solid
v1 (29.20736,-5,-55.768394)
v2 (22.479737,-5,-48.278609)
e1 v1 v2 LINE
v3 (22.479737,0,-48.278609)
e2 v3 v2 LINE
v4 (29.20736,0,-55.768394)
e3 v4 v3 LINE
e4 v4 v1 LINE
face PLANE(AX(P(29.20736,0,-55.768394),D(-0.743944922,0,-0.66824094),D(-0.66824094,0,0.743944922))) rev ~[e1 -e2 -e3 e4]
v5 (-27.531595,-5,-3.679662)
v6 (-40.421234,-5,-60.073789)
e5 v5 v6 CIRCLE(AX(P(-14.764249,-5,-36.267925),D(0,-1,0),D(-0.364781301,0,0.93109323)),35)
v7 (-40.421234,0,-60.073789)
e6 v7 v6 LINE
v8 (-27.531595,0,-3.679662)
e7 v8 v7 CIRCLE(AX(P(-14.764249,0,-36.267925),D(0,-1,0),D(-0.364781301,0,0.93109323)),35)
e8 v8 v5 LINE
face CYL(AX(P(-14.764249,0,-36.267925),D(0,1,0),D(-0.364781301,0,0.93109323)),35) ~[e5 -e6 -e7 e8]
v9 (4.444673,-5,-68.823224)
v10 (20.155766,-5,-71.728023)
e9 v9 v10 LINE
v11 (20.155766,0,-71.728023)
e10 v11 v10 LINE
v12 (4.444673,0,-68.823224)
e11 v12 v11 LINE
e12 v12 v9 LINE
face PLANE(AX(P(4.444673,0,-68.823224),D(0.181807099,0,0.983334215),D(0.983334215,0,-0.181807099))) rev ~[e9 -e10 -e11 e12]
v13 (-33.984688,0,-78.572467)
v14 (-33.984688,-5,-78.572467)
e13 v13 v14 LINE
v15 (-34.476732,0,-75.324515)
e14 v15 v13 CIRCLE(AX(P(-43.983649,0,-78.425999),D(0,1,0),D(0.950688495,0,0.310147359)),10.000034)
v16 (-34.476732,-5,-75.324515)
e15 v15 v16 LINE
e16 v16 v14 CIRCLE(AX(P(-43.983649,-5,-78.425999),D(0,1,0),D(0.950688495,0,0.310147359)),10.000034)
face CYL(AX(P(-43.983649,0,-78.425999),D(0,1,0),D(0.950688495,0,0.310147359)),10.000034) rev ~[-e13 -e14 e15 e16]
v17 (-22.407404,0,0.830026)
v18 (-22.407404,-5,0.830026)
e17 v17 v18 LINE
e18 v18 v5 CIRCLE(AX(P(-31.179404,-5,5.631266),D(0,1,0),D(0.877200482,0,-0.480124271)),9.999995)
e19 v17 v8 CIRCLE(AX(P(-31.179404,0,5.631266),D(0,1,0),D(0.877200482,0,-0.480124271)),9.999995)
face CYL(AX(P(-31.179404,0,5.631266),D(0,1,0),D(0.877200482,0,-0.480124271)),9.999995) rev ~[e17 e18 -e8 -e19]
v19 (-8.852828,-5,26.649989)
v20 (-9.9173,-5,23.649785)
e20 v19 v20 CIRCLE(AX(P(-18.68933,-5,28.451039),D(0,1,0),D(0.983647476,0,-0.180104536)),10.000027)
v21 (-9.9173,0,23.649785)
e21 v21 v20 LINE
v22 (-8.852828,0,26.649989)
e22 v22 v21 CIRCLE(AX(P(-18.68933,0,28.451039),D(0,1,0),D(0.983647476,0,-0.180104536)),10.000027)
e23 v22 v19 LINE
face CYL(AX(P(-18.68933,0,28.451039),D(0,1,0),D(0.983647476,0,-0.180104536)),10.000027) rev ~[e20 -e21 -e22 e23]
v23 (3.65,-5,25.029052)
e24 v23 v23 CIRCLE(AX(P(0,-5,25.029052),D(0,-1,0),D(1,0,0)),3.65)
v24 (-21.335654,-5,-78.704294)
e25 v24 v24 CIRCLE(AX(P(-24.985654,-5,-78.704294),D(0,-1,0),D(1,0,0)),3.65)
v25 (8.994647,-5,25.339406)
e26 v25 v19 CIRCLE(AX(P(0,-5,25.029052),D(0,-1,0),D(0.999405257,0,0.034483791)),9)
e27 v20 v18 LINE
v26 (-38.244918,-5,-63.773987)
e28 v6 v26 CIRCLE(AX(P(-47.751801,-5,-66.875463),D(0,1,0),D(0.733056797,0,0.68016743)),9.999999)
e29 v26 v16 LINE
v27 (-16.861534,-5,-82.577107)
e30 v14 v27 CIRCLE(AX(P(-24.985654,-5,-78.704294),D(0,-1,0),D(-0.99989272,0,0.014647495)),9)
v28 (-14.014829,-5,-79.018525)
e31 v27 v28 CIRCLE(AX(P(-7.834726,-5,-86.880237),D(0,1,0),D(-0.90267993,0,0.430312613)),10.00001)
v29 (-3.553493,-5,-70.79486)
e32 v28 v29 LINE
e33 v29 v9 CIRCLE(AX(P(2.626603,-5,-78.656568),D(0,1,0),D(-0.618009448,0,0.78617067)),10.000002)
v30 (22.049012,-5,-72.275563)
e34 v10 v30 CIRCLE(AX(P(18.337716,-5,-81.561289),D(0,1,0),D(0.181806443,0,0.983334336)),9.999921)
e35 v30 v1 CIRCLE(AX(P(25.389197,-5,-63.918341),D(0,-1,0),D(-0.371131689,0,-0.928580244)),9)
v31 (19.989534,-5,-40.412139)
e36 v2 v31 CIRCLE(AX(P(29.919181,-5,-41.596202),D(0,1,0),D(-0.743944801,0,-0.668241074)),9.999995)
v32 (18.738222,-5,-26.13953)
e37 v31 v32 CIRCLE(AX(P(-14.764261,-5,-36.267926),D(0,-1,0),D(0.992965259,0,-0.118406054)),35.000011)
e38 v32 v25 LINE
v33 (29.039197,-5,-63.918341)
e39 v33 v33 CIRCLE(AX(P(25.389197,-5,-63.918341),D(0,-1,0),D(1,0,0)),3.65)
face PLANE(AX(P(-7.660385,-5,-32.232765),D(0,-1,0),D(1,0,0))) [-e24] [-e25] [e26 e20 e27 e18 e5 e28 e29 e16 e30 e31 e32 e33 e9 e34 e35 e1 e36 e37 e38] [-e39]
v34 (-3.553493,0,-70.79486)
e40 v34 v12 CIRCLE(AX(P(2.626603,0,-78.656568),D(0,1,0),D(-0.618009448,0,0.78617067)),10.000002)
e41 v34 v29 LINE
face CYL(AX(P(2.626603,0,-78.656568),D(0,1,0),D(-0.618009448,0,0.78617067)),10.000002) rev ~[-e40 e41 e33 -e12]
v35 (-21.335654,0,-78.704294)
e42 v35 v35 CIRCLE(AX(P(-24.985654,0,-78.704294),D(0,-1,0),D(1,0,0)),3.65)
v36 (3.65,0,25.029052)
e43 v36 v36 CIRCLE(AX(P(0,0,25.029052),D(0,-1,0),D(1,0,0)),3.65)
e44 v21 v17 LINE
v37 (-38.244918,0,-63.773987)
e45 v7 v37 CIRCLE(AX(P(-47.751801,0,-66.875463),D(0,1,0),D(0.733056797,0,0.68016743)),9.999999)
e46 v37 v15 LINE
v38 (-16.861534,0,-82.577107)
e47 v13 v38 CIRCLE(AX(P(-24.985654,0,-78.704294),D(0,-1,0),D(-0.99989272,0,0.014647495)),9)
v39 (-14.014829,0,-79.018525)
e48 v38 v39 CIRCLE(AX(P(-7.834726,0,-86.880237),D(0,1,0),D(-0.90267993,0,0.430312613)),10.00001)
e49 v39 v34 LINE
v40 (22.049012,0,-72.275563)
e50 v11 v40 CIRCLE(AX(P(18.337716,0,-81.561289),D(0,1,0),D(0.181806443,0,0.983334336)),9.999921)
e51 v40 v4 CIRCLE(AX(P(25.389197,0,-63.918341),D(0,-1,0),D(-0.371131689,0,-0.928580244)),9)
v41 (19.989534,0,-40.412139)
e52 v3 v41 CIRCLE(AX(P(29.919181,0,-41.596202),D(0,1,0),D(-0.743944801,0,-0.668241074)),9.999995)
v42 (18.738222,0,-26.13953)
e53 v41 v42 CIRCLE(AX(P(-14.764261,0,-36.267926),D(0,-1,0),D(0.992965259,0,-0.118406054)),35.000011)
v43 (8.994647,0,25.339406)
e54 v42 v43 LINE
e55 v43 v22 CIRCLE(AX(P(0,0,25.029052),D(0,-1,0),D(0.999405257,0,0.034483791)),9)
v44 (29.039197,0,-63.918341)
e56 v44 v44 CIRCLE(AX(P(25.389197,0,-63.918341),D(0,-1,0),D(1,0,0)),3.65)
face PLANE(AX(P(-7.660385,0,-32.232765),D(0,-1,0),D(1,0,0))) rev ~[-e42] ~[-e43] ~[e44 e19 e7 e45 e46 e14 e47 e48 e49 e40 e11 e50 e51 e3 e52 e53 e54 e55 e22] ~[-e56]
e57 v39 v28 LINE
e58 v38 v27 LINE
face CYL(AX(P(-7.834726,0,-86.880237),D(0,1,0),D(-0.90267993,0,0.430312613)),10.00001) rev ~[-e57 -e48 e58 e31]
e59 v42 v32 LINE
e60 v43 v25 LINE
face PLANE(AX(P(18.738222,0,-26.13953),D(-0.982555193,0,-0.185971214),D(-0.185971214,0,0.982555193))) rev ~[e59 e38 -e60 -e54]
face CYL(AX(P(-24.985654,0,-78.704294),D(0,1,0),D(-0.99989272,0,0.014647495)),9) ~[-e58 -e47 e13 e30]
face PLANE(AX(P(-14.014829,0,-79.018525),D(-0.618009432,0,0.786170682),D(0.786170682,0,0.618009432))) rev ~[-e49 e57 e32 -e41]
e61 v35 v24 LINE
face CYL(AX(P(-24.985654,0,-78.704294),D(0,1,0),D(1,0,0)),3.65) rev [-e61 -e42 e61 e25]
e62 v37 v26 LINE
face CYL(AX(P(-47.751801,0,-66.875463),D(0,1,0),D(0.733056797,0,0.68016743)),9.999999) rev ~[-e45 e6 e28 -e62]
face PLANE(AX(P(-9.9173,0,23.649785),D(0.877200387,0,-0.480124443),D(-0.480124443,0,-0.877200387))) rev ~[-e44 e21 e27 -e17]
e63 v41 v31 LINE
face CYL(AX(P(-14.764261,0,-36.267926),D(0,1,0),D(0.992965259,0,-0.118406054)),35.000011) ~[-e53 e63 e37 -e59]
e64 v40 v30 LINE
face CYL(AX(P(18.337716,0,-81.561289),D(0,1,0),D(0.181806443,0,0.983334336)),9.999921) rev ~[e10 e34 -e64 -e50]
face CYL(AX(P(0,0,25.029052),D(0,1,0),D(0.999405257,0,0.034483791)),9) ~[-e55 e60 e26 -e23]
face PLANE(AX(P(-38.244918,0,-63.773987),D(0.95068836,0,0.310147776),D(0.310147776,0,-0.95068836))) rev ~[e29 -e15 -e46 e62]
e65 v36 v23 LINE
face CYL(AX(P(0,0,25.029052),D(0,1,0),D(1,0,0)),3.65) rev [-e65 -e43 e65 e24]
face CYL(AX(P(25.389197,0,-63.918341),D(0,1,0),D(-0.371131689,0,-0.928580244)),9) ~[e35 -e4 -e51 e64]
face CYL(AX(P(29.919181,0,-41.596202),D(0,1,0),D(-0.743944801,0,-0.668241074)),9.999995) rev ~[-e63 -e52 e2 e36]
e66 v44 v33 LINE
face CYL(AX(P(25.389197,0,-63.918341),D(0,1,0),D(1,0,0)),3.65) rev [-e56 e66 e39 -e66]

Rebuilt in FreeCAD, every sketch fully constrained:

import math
import FreeCAD as App
import Part
import Sketcher
Q = App.Units.Quantity

doc = App.newDocument("Part")
body = doc.addObject("PartDesign::Body", "Body")

# Sketch on XZ plane
sketch1 = body.newObject("Sketcher::SketchObject", "Sketch")
sketch1.AttachmentSupport = (doc.getObject("XZ_Plane"), [""])
sketch1.MapMode = "FlatFace"
sketch1.addGeometry(Part.LineSegment(App.Vector(18.738222, -26.13953, 0), App.Vector(8.994647, 25.339406, 0)), False)
sketch1.addGeometry(Part.ArcOfCircle(Part.Circle(App.Vector(0, 25.029052, 0), App.Vector(0, 0, 1), 9), math.radians(1.976167), math.radians(169.624175)), False)
sketch1.addGeometry(Part.ArcOfCircle(Part.Circle(App.Vector(-18.68933, 28.451039, 0), App.Vector(0, 0, 1), 10.000027), math.radians(-28.693508), math.radians(-10.375849)), False)
sketch1.addGeometry(Part.LineSegment(App.Vector(-9.9173, 23.649785, 0), App.Vector(-22.407404, 0.830026, 0)), False)
sketch1.addGeometry(Part.ArcOfCircle(Part.Circle(App.Vector(-31.179404, 5.631266, 0), App.Vector(0, 0, 1), 9.999995), math.radians(-68.605887), math.radians(-28.693519)), False)
sketch1.addGeometry(Part.ArcOfCircle(Part.Circle(App.Vector(-14.764249, -36.267925, 0), App.Vector(0, 0, 1), 35), math.radians(111.394124), math.radians(222.856736)), False)
sketch1.addGeometry(Part.ArcOfCircle(Part.Circle(App.Vector(-47.751801, -66.875463, 0), App.Vector(0, 0, 1), 9.999999), math.radians(18.068125), math.radians(42.856728)), False)
sketch1.addGeometry(Part.LineSegment(App.Vector(-38.244918, -63.773987, 0), App.Vector(-34.476732, -75.324515, 0)), False)
sketch1.addGeometry(Part.ArcOfCircle(Part.Circle(App.Vector(-43.983649, -78.425999, 0), App.Vector(0, 0, 1), 10.000034), math.radians(-0.839227), math.radians(18.068111)), False)
sketch1.addGeometry(Part.ArcOfCircle(Part.Circle(App.Vector(-24.985654, -78.704294, 0), App.Vector(0, 0, 1), 9), math.radians(179.16073), math.radians(334.512605)), False)
sketch1.addGeometry(Part.ArcOfCircle(Part.Circle(App.Vector(-7.834726, -86.880237, 0), App.Vector(0, 0, 1), 10.00001), math.radians(128.170938), math.radians(154.512599)), False)
sketch1.addGeometry(Part.LineSegment(App.Vector(-14.014829, -79.018525, 0), App.Vector(-3.553493, -70.79486, 0)), False)
sketch1.addGeometry(Part.ArcOfCircle(Part.Circle(App.Vector(2.626603, -78.656568, 0), App.Vector(0, 0, 1), 10.000002), math.radians(79.52497), math.radians(128.170919)), False)
sketch1.addGeometry(Part.LineSegment(App.Vector(4.444673, -68.823224, 0), App.Vector(20.155766, -71.728023, 0)), False)
sketch1.addGeometry(Part.ArcOfCircle(Part.Circle(App.Vector(18.337716, -81.561289, 0), App.Vector(0, 0, 1), 9.999921), math.radians(68.214519), math.radians(79.525002)), False)
sketch1.addGeometry(Part.ArcOfCircle(Part.Circle(App.Vector(25.389197, -63.918341, 0), App.Vector(0, 0, 1), 9), math.radians(-111.785428), math.radians(64.897413)), False)
sketch1.addGeometry(Part.LineSegment(App.Vector(29.20736, -55.768394, 0), App.Vector(22.479737, -48.278609, 0)), False)
sketch1.addGeometry(Part.ArcOfCircle(Part.Circle(App.Vector(29.919181, -41.596202, 0), App.Vector(0, 0, 1), 9.999995), math.radians(173.199864), math.radians(221.931455)), False)
sketch1.addGeometry(Part.ArcOfCircle(Part.Circle(App.Vector(-14.764261, -36.267926, 0), App.Vector(0, 0, 1), 35.000011), math.radians(-6.80012), math.radians(16.821)), False)
sketch1.addGeometry(Part.Circle(App.Vector(-24.985654, -78.704294, 0), App.Vector(0, 0, 1), 3.65), False)
sketch1.addGeometry(Part.Circle(App.Vector(25.389197, -63.918341, 0), App.Vector(0, 0, 1), 3.65), False)
sketch1.addGeometry(Part.Circle(App.Vector(0, 25.029052, 0), App.Vector(0, 0, 1), 3.65), False)
sketch1.addConstraint(Sketcher.Constraint("Coincident", 0, 2, 1, 1))
sketch1.addConstraint(Sketcher.Constraint("Tangent", 1, 2, 2, 2))
sketch1.addConstraint(Sketcher.Constraint("Tangent", 2, 1, 3, 1))
sketch1.addConstraint(Sketcher.Constraint("Tangent", 3, 2, 4, 2))
sketch1.addConstraint(Sketcher.Constraint("Tangent", 4, 1, 5, 1))
sketch1.addConstraint(Sketcher.Constraint("Tangent", 5, 2, 6, 2))
sketch1.addConstraint(Sketcher.Constraint("Tangent", 6, 1, 7, 1))
sketch1.addConstraint(Sketcher.Constraint("Tangent", 7, 2, 8, 2))
sketch1.addConstraint(Sketcher.Constraint("Tangent", 8, 1, 9, 1))
sketch1.addConstraint(Sketcher.Constraint("Tangent", 9, 2, 10, 2))
sketch1.addConstraint(Sketcher.Constraint("Tangent", 10, 1, 11, 1))
sketch1.addConstraint(Sketcher.Constraint("Tangent", 11, 2, 12, 2))
sketch1.addConstraint(Sketcher.Constraint("Tangent", 12, 1, 13, 1))
sketch1.addConstraint(Sketcher.Constraint("Tangent", 13, 2, 14, 2))
sketch1.addConstraint(Sketcher.Constraint("Tangent", 14, 1, 15, 1))
sketch1.addConstraint(Sketcher.Constraint("Coincident", 15, 2, 16, 1))
sketch1.addConstraint(Sketcher.Constraint("Tangent", 16, 2, 17, 2))
sketch1.addConstraint(Sketcher.Constraint("Tangent", 17, 1, 18, 1))
sketch1.addConstraint(Sketcher.Constraint("Coincident", 18, 2, 0, 1))
sketch1.addConstraint(Sketcher.Constraint("Coincident", 19, 3, 9, 3))
sketch1.addConstraint(Sketcher.Constraint("Coincident", 20, 3, 15, 3))
sketch1.addConstraint(Sketcher.Constraint("Coincident", 21, 3, 1, 3))
sketch1.addConstraint(Sketcher.Constraint("Equal", 1, 9))
sketch1.addConstraint(Sketcher.Constraint("Equal", 9, 15))
sketch1.addConstraint(Sketcher.Constraint("Equal", 4, 17))
sketch1.addConstraint(Sketcher.Constraint("Equal", 19, 20))
sketch1.addConstraint(Sketcher.Constraint("Equal", 20, 21))
sketch1.addConstraint(Sketcher.Constraint("PointOnObject", 1, 3, -2))
sketch1.addConstraint(Sketcher.Constraint("Horizontal", 5, 3, 18, 3))
sketch1.addConstraint(Sketcher.Constraint("Radius", 1, Q("9 mm")))
sketch1.addConstraint(Sketcher.Constraint("Radius", 5, Q("35 mm")))
sketch1.addConstraint(Sketcher.Constraint("Radius", 6, Q("9.999999 mm")))
sketch1.addConstraint(Sketcher.Constraint("Radius", 12, Q("10.000002 mm")))
sketch1.addConstraint(Sketcher.Constraint("Diameter", 19, Q("7.3 mm")))
sketch1.addConstraint(Sketcher.Constraint("Radius", 10, Q("10.00001 mm")))
sketch1.addConstraint(Sketcher.Constraint("Radius", 14, Q("9.999921 mm")))
sketch1.addConstraint(Sketcher.Constraint("Radius", 18, Q("35.000011 mm")))
sketch1.addConstraint(Sketcher.Constraint("DistanceY", 8, 3, -1, 1, Q("78.425999 mm")))
sketch1.addConstraint(Sketcher.Constraint("Radius", 2, Q("10.000027 mm")))
sketch1.addConstraint(Sketcher.Constraint("Radius", 4, Q("9.999995 mm")))
sketch1.addConstraint(Sketcher.Constraint("Radius", 8, Q("10.000034 mm")))
sketch1.addConstraint(Sketcher.Constraint("DistanceX", 4, 3, 3, 2, Q("8.772 mm")))
sketch1.addConstraint(Sketcher.Constraint("Distance", 11, Q("13.306698 mm")))
sketch1.addConstraint(Sketcher.Constraint("DistanceX", 6, 3, -1, 1, Q("47.751801 mm")))
sketch1.addConstraint(Sketcher.Constraint("DistanceY", 17, 3, -1, 1, Q("41.596202 mm")))
sketch1.addConstraint(Sketcher.Constraint("DistanceX", 2, 1, -1, 1, Q("9.9173 mm")))
sketch1.addConstraint(Sketcher.Constraint("DistanceY", 6, 3, 2, 3, Q("95.326502 mm")))
sketch1.addConstraint(Sketcher.Constraint("DistanceX", 8, 3, 5, 3, Q("29.219399 mm")))
sketch1.addConstraint(Sketcher.Constraint("DistanceY", 4, 1, 2, 3, Q("32.130701 mm")))
sketch1.addConstraint(Sketcher.Constraint("DistanceX", 7, 2, 9, 2, Q("17.615198 mm")))
sketch1.addConstraint(Sketcher.Constraint("DistanceY", 10, 1, 12, 1, Q("10.195301 mm")))
sketch1.addConstraint(Sketcher.Constraint("DistanceY", 13, 2, 12, 1, Q("2.904799 mm")))
sketch1.addConstraint(Sketcher.Constraint("DistanceY", 15, 3, 17, 1, Q("23.506202 mm")))
sketch1.addConstraint(Sketcher.Constraint("Distance", 0, Q("52.39292 mm")))
sketch1.addConstraint(Sketcher.Constraint("Distance", 13, Q("15.977368 mm")))
sketch1.addConstraint(Sketcher.Constraint("Distance", 16, Q("10.067661 mm")))
sketch1.addConstraint(Sketcher.Constraint("DistanceY", -1, 1, 1, 3, Q("25.029052 mm")))
sketch1.addConstraint(Sketcher.Constraint("DistanceY", 12, 3, -1, 1, Q("78.656568 mm")))
sketch1.addConstraint(Sketcher.Constraint("DistanceX", -1, 1, 17, 3, Q("29.919181 mm")))
sketch1.addConstraint(Sketcher.Constraint("DistanceY", 18, 2, -1, 1, Q("26.13953 mm")))
pad1 = body.newObject("PartDesign::Pad", "Pad")
pad1.Profile = sketch1
pad1.Length = 5

doc.recompute()
